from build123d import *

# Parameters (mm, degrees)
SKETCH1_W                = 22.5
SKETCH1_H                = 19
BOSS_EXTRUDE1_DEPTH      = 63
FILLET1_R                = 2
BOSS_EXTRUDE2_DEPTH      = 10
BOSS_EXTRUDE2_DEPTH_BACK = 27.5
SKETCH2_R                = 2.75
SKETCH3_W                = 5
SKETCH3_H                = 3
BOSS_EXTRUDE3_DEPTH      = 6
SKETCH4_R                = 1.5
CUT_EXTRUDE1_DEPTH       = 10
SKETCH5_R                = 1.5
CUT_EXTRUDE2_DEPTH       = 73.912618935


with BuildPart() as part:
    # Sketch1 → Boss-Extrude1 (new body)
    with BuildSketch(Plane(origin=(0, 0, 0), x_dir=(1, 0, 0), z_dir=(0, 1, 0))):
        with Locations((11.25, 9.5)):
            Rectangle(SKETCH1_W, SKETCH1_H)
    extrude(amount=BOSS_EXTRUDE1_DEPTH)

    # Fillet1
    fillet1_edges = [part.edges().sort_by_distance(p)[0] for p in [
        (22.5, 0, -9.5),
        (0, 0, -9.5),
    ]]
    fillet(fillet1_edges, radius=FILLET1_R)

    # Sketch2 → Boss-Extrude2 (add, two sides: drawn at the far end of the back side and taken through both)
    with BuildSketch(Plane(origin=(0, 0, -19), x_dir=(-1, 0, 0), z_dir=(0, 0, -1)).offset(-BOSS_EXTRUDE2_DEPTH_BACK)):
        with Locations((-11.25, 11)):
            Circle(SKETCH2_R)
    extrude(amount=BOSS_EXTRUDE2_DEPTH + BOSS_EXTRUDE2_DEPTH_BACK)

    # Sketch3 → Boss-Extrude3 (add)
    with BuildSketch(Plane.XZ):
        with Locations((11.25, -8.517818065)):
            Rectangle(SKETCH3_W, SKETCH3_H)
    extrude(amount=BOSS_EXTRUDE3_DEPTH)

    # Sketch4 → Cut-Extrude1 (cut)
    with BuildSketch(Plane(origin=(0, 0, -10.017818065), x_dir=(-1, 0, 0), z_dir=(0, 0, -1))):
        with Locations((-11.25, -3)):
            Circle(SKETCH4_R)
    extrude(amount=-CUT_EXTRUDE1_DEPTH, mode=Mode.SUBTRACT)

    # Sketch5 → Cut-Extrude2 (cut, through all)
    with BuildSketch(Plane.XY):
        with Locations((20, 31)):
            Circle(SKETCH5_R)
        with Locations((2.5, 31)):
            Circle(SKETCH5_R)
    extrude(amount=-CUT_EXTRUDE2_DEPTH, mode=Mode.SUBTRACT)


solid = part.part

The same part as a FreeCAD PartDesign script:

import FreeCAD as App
import Part
import Sketcher
from FreeCAD import Vector


def edges_at(feature, points):
    """Names of the edges that pass closest to the given points."""
    edges = feature.Shape.Edges
    near = lambda p: min(range(len(edges)), key=lambda i: edges[i].distToShape(Part.Vertex(*p))[0])
    return sorted({f"Edge{near(p) + 1}" for p in points})


def add_polygon(sketch, points):
    """Adds a closed chain of lines whose ends are joined by coincident constraints."""
    first, n = sketch.GeometryCount, len(points)
    for a, b in zip(points, points[1:] + points[:1]):
        sketch.addGeometry(Part.LineSegment(App.Vector(*a, 0), App.Vector(*b, 0)), False)
    for i in range(n):
        sketch.addConstraint(Sketcher.Constraint("Coincident", first + i, 2, first + (i + 1) % n, 1))

doc = App.newDocument("Part")
body = doc.addObject("PartDesign::Body", "Body")

sketch1 = body.newObject("Sketcher::SketchObject", "Sketch")
sketch1.AttachmentSupport = (doc.getObject("XZ_Plane"), [""])
sketch1.MapMode = "FlatFace"
add_polygon(sketch1, [(0, -19), (0, 0), (22, 0), (22, -19)])
sketch1.addConstraint(Sketcher.Constraint("Vertical", 0))
sketch1.addConstraint(Sketcher.Constraint("Horizontal", 1))
sketch1.addConstraint(Sketcher.Constraint("Vertical", 2))
sketch1.addConstraint(Sketcher.Constraint("Horizontal", 3))
sketch1.addConstraint(Sketcher.Constraint("Coincident", 0, 2, -1, 1))
sketch1.addConstraint(Sketcher.Constraint("DistanceY", 0, 1, 0, 2, 19.0))
sketch1.addConstraint(Sketcher.Constraint("DistanceX", 1, 1, 1, 2, 22.5))
pad1 = body.newObject("PartDesign::Pad", "Pad")
pad1.Profile = sketch1
pad1.Length = 63
pad1.Reversed = True
doc.recompute()

fillet = body.newObject("PartDesign::Fillet", "Fillet")
fillet.Base = (pad1, edges_at(pad1, [(22.5, 0, -9.5), (0, 0, -9.5)]))
fillet.Radius = 2

sketch2 = body.newObject("Sketcher::SketchObject", "Sketch001")
sketch2.AttachmentSupport = (doc.getObject("XY_Plane"), [""])
sketch2.MapMode = "FlatFace"
sketch2.AttachmentOffset = App.Placement(Vector(0, 0, -19), App.Rotation())
sketch2.addGeometry(Part.Circle(Vector(11.2, 11, 0), Vector(0, 0, 1), 2.8), False)
sketch2.addConstraint(Sketcher.Constraint("Diameter", 0, 5.5))
sketch2.addConstraint(Sketcher.Constraint("DistanceY", -1, 1, 0, 3, 11.0))
sketch2.addConstraint(Sketcher.Constraint("DistanceX", -1, 1, 0, 3, 11.25))
pad2 = body.newObject("PartDesign::Pad", "Pad001")
pad2.Profile = sketch2
pad2.Type = "TwoLengths"
pad2.Length = 10
pad2.Length2 = 27.5
pad2.Reversed = True

sketch3 = body.newObject("Sketcher::SketchObject", "Sketch002")
sketch3.AttachmentSupport = (doc.getObject("XZ_Plane"), [""])
sketch3.MapMode = "FlatFace"
add_polygon(sketch3, [(8.8, -7), (8.8, -10), (13.8, -10), (13.8, -7)])
sketch3.addConstraint(Sketcher.Constraint("Vertical", 0))
sketch3.addConstraint(Sketcher.Constraint("Horizontal", 1))
sketch3.addConstraint(Sketcher.Constraint("Vertical", 2))
sketch3.addConstraint(Sketcher.Constraint("Horizontal", 3))
sketch3.addConstraint(Sketcher.Constraint("DistanceX", 1, 1, 1, 2, 5.0))
sketch3.addConstraint(Sketcher.Constraint("DistanceY", 0, 2, 0, 1, 3.0))
sketch3.addConstraint(Sketcher.Constraint("DistanceX", -1, 1, 0, 2, 8.75))
sketch3.addConstraint(Sketcher.Constraint("DistanceY", 0, 2, -1, 1, 10.017818))
pad3 = body.newObject("PartDesign::Pad", "Pad002")
pad3.Profile = sketch3
pad3.Length = 6

sketch4 = body.newObject("Sketcher::SketchObject", "Sketch003")
sketch4.AttachmentSupport = (doc.getObject("XY_Plane"), [""])
sketch4.MapMode = "FlatFace"
sketch4.AttachmentOffset = App.Placement(Vector(0, 0, -10.017818), App.Rotation())
sketch4.addGeometry(Part.Circle(Vector(11.2, -3, 0), Vector(0, 0, 1), 1.5), False)
sketch4.addConstraint(Sketcher.Constraint("Diameter", 0, 3.0))
sketch4.addConstraint(Sketcher.Constraint("DistanceY", 0, 3, -1, 1, 3.0))
sketch4.addConstraint(Sketcher.Constraint("DistanceX", -1, 1, 0, 3, 11.25))
pocket1 = body.newObject("PartDesign::Pocket", "Pocket")
pocket1.Profile = sketch4
pocket1.Length = 10
pocket1.Reversed = True

sketch5 = body.newObject("Sketcher::SketchObject", "Sketch004")
sketch5.AttachmentSupport = (doc.getObject("XY_Plane"), [""])
sketch5.MapMode = "FlatFace"
sketch5.addGeometry(Part.Circle(Vector(20, 31, 0), Vector(0, 0, 1), 1.5), False)
sketch5.addGeometry(Part.Circle(Vector(2.5, 31, 0), Vector(0, 0, 1), 1.5), False)
sketch5.addConstraint(Sketcher.Constraint("Equal", 0, 1))
sketch5.addConstraint(Sketcher.Constraint("Horizontal", 0, 3, 1, 3))
sketch5.addConstraint(Sketcher.Constraint("Diameter", 0, 3.0))
sketch5.addConstraint(Sketcher.Constraint("DistanceX", -1, 1, 0, 3, 20.0))
sketch5.addConstraint(Sketcher.Constraint("DistanceY", -1, 1, 0, 3, 31.0))
sketch5.addConstraint(Sketcher.Constraint("DistanceX", -1, 1, 1, 3, 2.5))
pocket2 = body.newObject("PartDesign::Pocket", "Pocket001")
pocket2.Profile = sketch5
pocket2.Type = "ThroughAll"

doc.recompute()
